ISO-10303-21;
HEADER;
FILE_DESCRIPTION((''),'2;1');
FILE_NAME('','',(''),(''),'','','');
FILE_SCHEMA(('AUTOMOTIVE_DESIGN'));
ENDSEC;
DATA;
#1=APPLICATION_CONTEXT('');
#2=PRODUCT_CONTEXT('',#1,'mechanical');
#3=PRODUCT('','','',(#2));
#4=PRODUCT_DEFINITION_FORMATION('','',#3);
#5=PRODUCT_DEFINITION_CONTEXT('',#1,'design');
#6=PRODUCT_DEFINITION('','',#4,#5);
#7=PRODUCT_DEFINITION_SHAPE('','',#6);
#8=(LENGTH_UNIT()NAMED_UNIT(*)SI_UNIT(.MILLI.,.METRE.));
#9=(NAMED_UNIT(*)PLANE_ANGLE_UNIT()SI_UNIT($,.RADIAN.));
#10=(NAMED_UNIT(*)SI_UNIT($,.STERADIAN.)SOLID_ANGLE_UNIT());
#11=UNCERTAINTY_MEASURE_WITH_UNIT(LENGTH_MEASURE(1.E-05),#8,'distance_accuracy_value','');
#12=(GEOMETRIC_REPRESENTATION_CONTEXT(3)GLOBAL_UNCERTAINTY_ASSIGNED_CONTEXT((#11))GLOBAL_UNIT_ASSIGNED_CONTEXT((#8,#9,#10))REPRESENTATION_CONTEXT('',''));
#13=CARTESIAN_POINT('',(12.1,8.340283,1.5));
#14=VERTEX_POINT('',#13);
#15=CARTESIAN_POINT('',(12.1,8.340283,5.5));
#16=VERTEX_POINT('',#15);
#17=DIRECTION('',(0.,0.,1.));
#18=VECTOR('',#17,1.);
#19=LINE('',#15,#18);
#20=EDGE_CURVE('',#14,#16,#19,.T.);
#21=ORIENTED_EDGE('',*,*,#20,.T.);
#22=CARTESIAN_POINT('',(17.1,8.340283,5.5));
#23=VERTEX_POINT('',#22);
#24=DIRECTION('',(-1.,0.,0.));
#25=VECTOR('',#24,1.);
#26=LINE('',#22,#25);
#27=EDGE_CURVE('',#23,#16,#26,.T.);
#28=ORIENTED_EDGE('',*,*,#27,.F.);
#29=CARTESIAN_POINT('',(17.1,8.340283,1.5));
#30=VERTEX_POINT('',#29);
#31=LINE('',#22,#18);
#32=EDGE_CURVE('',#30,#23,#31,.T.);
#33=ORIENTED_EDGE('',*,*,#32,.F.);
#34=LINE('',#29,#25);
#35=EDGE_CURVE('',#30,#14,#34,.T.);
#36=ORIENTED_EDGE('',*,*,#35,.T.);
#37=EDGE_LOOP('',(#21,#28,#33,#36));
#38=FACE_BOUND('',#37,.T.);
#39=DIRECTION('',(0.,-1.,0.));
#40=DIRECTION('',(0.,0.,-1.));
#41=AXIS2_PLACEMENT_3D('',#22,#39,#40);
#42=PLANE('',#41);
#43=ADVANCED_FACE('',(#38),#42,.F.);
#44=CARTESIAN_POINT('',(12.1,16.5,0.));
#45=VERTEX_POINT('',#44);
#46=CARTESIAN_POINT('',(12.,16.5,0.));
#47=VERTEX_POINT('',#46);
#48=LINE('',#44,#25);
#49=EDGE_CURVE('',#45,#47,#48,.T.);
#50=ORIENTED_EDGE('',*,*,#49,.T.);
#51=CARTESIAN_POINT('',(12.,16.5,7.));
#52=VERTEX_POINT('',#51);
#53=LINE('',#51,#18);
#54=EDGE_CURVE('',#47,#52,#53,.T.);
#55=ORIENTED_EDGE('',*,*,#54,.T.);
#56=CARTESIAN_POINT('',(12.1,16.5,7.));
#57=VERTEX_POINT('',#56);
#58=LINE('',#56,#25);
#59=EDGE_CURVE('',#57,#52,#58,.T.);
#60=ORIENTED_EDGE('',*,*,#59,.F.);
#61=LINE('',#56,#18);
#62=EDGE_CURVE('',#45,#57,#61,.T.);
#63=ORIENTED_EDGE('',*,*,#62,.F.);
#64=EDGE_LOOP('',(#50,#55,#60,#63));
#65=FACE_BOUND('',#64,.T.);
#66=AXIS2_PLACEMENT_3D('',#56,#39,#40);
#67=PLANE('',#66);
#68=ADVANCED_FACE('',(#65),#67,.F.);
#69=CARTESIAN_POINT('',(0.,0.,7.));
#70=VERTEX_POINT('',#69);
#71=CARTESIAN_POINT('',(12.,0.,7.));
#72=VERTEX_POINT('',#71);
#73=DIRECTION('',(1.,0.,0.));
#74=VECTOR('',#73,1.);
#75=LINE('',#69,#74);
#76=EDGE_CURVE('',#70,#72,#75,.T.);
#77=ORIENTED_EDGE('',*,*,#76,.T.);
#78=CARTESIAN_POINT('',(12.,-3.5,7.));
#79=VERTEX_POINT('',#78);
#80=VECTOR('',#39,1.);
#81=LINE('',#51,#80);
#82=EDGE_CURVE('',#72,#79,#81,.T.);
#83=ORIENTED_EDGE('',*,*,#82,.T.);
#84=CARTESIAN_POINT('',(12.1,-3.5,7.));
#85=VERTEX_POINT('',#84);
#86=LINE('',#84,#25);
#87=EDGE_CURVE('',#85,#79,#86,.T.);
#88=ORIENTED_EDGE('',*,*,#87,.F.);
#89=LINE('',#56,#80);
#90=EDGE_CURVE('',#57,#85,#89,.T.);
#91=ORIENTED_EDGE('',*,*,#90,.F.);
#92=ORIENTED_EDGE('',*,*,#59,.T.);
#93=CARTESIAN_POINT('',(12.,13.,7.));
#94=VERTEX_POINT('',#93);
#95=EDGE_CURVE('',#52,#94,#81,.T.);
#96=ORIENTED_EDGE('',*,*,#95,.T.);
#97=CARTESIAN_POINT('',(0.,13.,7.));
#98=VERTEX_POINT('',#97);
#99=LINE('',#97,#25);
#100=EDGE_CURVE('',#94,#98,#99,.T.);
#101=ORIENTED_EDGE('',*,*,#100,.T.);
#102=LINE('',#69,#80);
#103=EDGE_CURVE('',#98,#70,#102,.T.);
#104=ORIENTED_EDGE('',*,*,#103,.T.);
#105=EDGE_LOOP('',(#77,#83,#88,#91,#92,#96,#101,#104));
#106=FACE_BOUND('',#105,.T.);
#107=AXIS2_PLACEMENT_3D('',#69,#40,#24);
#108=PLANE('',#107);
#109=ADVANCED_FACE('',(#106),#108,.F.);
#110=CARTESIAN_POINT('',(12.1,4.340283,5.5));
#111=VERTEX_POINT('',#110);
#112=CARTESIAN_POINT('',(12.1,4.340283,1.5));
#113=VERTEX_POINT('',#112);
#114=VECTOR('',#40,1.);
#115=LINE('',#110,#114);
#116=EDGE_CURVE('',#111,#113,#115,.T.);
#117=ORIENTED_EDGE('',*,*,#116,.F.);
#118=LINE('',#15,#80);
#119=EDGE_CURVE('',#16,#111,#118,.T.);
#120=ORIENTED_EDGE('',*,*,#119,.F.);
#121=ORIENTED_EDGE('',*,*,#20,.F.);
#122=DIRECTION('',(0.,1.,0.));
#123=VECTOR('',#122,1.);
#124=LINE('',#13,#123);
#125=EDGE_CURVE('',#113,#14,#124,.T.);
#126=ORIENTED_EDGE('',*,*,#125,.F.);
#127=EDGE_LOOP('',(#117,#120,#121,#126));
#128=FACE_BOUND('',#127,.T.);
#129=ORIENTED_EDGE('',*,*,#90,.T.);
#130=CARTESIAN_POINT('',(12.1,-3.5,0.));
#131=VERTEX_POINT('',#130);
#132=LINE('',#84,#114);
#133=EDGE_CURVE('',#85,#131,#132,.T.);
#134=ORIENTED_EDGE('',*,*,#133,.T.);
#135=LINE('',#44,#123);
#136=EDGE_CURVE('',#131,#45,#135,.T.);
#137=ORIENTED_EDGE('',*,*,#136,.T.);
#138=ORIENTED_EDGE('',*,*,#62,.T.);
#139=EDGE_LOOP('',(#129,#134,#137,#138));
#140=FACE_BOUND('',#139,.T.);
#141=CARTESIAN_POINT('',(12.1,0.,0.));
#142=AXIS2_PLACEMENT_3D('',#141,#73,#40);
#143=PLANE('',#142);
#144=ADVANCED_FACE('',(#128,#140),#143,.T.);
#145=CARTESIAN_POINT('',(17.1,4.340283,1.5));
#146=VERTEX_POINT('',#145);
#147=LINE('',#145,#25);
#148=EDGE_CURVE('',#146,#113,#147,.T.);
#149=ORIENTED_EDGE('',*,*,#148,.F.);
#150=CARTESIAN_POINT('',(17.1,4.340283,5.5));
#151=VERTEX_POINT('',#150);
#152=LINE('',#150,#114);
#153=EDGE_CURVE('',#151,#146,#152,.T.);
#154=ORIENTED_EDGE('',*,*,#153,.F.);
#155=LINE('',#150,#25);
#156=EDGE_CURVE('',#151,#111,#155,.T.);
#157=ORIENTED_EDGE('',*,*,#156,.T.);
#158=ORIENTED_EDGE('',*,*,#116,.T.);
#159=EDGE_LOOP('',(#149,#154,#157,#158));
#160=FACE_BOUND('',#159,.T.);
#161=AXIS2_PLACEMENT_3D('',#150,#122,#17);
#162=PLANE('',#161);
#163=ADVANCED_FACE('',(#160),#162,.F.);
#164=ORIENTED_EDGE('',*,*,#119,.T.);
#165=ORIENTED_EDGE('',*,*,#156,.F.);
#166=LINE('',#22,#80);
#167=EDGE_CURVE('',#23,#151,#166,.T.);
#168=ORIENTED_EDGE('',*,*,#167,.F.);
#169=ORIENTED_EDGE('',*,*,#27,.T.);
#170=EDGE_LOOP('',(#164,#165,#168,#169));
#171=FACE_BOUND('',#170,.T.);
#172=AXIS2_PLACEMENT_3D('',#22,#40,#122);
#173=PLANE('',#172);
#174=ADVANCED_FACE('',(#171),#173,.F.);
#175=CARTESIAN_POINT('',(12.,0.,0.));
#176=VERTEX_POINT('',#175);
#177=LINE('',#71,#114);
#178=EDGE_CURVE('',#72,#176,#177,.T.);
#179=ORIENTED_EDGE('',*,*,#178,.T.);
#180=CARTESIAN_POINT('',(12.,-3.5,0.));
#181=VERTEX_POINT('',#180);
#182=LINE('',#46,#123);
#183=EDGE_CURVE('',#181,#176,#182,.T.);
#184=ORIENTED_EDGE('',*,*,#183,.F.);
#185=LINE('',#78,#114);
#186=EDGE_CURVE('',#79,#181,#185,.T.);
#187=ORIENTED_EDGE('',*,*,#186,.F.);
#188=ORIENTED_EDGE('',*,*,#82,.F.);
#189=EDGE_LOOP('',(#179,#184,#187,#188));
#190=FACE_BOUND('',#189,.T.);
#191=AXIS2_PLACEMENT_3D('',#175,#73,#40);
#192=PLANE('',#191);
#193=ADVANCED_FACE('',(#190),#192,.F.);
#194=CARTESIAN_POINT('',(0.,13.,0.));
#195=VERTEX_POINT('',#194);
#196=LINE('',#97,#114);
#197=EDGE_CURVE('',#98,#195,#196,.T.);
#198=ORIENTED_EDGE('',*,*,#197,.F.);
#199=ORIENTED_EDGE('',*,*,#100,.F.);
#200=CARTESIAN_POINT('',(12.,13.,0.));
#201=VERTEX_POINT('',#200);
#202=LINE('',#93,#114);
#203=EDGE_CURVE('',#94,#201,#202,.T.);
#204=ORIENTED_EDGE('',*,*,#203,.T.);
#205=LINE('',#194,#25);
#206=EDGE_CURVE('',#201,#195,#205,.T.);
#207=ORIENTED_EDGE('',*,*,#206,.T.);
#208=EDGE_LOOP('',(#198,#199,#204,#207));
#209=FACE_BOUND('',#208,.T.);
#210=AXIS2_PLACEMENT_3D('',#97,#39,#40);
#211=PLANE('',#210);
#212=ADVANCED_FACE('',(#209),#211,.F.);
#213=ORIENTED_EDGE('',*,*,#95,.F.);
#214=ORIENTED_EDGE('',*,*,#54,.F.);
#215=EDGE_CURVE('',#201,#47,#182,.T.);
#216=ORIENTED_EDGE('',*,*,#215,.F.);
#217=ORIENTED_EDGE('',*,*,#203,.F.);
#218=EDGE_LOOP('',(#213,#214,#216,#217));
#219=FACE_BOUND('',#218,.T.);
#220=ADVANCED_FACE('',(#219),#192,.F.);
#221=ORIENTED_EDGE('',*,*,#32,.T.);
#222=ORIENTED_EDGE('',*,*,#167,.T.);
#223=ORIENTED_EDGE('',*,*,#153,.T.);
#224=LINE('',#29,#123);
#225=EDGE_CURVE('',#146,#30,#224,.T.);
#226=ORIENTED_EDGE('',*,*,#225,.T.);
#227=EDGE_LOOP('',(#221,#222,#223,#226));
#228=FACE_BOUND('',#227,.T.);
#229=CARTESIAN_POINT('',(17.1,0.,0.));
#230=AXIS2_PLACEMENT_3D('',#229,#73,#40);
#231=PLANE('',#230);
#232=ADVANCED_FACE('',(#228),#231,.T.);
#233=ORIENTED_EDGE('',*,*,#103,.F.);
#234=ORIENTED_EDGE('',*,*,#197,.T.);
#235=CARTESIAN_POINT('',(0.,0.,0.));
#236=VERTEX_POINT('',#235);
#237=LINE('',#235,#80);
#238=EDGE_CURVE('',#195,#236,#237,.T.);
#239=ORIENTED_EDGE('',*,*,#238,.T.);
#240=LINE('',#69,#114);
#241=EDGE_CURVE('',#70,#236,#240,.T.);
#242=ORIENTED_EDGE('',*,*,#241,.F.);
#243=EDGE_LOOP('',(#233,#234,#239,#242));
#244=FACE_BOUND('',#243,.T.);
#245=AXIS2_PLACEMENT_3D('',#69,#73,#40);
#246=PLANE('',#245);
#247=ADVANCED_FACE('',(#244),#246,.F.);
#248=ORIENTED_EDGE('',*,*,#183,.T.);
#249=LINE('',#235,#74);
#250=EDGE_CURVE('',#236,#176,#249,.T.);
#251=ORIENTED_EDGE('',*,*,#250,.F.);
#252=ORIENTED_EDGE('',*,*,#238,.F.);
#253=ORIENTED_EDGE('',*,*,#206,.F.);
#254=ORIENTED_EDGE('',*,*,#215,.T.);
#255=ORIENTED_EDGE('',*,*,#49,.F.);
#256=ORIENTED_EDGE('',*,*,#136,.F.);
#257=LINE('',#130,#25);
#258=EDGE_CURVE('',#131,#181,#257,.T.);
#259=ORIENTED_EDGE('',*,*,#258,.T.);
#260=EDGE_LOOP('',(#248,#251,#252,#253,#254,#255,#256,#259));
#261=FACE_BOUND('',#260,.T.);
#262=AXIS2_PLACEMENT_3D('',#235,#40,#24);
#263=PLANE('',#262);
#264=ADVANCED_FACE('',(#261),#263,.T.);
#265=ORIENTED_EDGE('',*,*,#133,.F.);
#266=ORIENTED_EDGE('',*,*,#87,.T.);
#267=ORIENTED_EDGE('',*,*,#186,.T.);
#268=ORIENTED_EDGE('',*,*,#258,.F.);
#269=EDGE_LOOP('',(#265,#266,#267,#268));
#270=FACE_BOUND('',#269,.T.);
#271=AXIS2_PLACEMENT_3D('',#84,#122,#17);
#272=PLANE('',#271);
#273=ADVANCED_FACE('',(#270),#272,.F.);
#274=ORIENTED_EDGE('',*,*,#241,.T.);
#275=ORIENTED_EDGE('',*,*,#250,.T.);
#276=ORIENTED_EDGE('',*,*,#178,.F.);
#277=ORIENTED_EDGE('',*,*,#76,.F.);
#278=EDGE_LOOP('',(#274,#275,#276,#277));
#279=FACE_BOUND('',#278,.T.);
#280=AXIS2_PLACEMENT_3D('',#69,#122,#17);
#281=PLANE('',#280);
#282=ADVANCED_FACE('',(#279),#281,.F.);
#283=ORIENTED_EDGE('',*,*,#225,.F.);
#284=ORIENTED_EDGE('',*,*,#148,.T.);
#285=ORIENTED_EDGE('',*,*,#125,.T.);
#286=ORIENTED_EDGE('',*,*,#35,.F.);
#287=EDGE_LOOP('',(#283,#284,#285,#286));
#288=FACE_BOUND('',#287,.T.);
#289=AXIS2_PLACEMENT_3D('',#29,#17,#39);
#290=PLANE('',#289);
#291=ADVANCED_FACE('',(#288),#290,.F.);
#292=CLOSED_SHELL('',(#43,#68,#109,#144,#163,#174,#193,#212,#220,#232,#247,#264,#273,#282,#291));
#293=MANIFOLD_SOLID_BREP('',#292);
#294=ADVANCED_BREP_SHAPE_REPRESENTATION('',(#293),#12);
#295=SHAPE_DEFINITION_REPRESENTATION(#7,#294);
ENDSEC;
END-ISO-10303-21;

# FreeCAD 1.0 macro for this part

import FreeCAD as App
import Part
import Sketcher

V = App.Vector
Q = App.Units.Quantity


def add_polygon(sketch, points):
    """Adds a closed chain of lines whose ends are joined by coincident constraints."""
    first, n = sketch.GeometryCount, len(points)
    for a, b in zip(points, points[1:] + points[:1]):
        sketch.addGeometry(Part.LineSegment(App.Vector(*a, 0), App.Vector(*b, 0)), False)
    for i in range(n):
        sketch.addConstraint(Sketcher.Constraint("Coincident", first + i, 2, first + (i + 1) % n, 1))

doc = App.newDocument("Part")
params = doc.addObject("Spreadsheet::Sheet", "Params")
for row, (alias, value) in enumerate([
    ("sketch1_width", "12 mm"),
    ("sketch1_height", "13 mm"),
    ("pad1_length", "7 mm"),
    ("sketch2_width", "20 mm"),
    ("sketch2_height", "7 mm"),
    ("pad2_length", "0.1 mm"),
    ("sketch3_width", "4 mm"),
    ("pad3_length", "5 mm"),
], start=1):
    params.set(f"A{row}", alias)
    params.set(f"B{row}", "=" + value)
    params.setAlias(f"B{row}", alias)

body = doc.addObject("PartDesign::Body", "Body")

# Sketch on XY plane
sketch1 = body.newObject("Sketcher::SketchObject", "Sketch")
sketch1.AttachmentSupport = (doc.getObject("XY_Plane"), [""])
sketch1.MapMode = "FlatFace"
add_polygon(sketch1, [(0, 13), (0, 0), (12, 0), (12, 13)])  # lines 0-3
sketch1.addConstraint([
    Sketcher.Constraint("Vertical", 0),
    Sketcher.Constraint("Horizontal", 1),
    Sketcher.Constraint("Vertical", 2),
    Sketcher.Constraint("Horizontal", 3),
    Sketcher.Constraint("Coincident", 0, 2, -1, 1),
    Sketcher.Constraint("DistanceX", 1, 1, 1, 2, Q("12 mm")),
    Sketcher.Constraint("DistanceY", 0, 2, 0, 1, Q("13 mm")),
])
sketch1.setExpression("Constraints[9]", "Params.sketch1_width")
sketch1.setExpression("Constraints[10]", "Params.sketch1_height")
pad1 = body.newObject("PartDesign::Pad", "Pad")
pad1.Profile = sketch1
pad1.setExpression("Length", "Params.pad1_length")

# Sketch on YZ plane
sketch2 = body.newObject("Sketcher::SketchObject", "Sketch001")
sketch2.AttachmentSupport = (doc.getObject("YZ_Plane"), [""])
sketch2.MapMode = "FlatFace"
sketch2.AttachmentOffset = App.Placement(V(0, 0, 12), App.Rotation())
add_polygon(sketch2, [(16.5, 7), (-3.5, 7), (-3.5, 0), (16.5, 0)])  # lines 0-3
sketch2.addConstraint([
    Sketcher.Constraint("Horizontal", 0),
    Sketcher.Constraint("Vertical", 1),
    Sketcher.Constraint("Horizontal", 2),
    Sketcher.Constraint("Vertical", 3),
    Sketcher.Constraint("PointOnObject", 1, 2, -1),
    Sketcher.Constraint("DistanceX", 0, 2, 0, 1, Q("20 mm")),
    Sketcher.Constraint("DistanceY", 1, 2, 1, 1, Q("7 mm")),
    Sketcher.Constraint("DistanceX", 0, 2, -1, 1, Q("3.5 mm")),
])
sketch2.setExpression("Constraints[9]", "Params.sketch2_width")
sketch2.setExpression("Constraints[10]", "Params.sketch2_height")
pad2 = body.newObject("PartDesign::Pad", "Pad001")
pad2.Profile = sketch2
pad2.setExpression("Length", "Params.pad2_length")

# Sketch on YZ plane
sketch3 = body.newObject("Sketcher::SketchObject", "Sketch002")
sketch3.AttachmentSupport = (doc.getObject("YZ_Plane"), [""])
sketch3.MapMode = "FlatFace"
sketch3.AttachmentOffset = App.Placement(V(0, 0, 12.1), App.Rotation())
add_polygon(sketch3, [(8.340283, 5.5), (4.340283, 5.5), (4.340283, 1.5), (8.340283, 1.5)])  # lines 0-3
sketch3.addConstraint([
    Sketcher.Constraint("Horizontal", 0),
    Sketcher.Constraint("Vertical", 1),
    Sketcher.Constraint("Horizontal", 2),
    Sketcher.Constraint("Vertical", 3),
    Sketcher.Constraint("Equal", 2, 1),
    Sketcher.Constraint("DistanceX", 0, 2, 0, 1, Q("4 mm")),
    Sketcher.Constraint("DistanceY", -1, 1, 0, 2, Q("5.5 mm")),
    Sketcher.Constraint("DistanceX", -1, 1, 0, 2, Q("4.340283 mm")),
])
sketch3.setExpression("Constraints[9]", "Params.sketch3_width")
pad3 = body.newObject("PartDesign::Pad", "Pad002")
pad3.Profile = sketch3
pad3.setExpression("Length", "Params.pad3_length")

doc.recompute()
